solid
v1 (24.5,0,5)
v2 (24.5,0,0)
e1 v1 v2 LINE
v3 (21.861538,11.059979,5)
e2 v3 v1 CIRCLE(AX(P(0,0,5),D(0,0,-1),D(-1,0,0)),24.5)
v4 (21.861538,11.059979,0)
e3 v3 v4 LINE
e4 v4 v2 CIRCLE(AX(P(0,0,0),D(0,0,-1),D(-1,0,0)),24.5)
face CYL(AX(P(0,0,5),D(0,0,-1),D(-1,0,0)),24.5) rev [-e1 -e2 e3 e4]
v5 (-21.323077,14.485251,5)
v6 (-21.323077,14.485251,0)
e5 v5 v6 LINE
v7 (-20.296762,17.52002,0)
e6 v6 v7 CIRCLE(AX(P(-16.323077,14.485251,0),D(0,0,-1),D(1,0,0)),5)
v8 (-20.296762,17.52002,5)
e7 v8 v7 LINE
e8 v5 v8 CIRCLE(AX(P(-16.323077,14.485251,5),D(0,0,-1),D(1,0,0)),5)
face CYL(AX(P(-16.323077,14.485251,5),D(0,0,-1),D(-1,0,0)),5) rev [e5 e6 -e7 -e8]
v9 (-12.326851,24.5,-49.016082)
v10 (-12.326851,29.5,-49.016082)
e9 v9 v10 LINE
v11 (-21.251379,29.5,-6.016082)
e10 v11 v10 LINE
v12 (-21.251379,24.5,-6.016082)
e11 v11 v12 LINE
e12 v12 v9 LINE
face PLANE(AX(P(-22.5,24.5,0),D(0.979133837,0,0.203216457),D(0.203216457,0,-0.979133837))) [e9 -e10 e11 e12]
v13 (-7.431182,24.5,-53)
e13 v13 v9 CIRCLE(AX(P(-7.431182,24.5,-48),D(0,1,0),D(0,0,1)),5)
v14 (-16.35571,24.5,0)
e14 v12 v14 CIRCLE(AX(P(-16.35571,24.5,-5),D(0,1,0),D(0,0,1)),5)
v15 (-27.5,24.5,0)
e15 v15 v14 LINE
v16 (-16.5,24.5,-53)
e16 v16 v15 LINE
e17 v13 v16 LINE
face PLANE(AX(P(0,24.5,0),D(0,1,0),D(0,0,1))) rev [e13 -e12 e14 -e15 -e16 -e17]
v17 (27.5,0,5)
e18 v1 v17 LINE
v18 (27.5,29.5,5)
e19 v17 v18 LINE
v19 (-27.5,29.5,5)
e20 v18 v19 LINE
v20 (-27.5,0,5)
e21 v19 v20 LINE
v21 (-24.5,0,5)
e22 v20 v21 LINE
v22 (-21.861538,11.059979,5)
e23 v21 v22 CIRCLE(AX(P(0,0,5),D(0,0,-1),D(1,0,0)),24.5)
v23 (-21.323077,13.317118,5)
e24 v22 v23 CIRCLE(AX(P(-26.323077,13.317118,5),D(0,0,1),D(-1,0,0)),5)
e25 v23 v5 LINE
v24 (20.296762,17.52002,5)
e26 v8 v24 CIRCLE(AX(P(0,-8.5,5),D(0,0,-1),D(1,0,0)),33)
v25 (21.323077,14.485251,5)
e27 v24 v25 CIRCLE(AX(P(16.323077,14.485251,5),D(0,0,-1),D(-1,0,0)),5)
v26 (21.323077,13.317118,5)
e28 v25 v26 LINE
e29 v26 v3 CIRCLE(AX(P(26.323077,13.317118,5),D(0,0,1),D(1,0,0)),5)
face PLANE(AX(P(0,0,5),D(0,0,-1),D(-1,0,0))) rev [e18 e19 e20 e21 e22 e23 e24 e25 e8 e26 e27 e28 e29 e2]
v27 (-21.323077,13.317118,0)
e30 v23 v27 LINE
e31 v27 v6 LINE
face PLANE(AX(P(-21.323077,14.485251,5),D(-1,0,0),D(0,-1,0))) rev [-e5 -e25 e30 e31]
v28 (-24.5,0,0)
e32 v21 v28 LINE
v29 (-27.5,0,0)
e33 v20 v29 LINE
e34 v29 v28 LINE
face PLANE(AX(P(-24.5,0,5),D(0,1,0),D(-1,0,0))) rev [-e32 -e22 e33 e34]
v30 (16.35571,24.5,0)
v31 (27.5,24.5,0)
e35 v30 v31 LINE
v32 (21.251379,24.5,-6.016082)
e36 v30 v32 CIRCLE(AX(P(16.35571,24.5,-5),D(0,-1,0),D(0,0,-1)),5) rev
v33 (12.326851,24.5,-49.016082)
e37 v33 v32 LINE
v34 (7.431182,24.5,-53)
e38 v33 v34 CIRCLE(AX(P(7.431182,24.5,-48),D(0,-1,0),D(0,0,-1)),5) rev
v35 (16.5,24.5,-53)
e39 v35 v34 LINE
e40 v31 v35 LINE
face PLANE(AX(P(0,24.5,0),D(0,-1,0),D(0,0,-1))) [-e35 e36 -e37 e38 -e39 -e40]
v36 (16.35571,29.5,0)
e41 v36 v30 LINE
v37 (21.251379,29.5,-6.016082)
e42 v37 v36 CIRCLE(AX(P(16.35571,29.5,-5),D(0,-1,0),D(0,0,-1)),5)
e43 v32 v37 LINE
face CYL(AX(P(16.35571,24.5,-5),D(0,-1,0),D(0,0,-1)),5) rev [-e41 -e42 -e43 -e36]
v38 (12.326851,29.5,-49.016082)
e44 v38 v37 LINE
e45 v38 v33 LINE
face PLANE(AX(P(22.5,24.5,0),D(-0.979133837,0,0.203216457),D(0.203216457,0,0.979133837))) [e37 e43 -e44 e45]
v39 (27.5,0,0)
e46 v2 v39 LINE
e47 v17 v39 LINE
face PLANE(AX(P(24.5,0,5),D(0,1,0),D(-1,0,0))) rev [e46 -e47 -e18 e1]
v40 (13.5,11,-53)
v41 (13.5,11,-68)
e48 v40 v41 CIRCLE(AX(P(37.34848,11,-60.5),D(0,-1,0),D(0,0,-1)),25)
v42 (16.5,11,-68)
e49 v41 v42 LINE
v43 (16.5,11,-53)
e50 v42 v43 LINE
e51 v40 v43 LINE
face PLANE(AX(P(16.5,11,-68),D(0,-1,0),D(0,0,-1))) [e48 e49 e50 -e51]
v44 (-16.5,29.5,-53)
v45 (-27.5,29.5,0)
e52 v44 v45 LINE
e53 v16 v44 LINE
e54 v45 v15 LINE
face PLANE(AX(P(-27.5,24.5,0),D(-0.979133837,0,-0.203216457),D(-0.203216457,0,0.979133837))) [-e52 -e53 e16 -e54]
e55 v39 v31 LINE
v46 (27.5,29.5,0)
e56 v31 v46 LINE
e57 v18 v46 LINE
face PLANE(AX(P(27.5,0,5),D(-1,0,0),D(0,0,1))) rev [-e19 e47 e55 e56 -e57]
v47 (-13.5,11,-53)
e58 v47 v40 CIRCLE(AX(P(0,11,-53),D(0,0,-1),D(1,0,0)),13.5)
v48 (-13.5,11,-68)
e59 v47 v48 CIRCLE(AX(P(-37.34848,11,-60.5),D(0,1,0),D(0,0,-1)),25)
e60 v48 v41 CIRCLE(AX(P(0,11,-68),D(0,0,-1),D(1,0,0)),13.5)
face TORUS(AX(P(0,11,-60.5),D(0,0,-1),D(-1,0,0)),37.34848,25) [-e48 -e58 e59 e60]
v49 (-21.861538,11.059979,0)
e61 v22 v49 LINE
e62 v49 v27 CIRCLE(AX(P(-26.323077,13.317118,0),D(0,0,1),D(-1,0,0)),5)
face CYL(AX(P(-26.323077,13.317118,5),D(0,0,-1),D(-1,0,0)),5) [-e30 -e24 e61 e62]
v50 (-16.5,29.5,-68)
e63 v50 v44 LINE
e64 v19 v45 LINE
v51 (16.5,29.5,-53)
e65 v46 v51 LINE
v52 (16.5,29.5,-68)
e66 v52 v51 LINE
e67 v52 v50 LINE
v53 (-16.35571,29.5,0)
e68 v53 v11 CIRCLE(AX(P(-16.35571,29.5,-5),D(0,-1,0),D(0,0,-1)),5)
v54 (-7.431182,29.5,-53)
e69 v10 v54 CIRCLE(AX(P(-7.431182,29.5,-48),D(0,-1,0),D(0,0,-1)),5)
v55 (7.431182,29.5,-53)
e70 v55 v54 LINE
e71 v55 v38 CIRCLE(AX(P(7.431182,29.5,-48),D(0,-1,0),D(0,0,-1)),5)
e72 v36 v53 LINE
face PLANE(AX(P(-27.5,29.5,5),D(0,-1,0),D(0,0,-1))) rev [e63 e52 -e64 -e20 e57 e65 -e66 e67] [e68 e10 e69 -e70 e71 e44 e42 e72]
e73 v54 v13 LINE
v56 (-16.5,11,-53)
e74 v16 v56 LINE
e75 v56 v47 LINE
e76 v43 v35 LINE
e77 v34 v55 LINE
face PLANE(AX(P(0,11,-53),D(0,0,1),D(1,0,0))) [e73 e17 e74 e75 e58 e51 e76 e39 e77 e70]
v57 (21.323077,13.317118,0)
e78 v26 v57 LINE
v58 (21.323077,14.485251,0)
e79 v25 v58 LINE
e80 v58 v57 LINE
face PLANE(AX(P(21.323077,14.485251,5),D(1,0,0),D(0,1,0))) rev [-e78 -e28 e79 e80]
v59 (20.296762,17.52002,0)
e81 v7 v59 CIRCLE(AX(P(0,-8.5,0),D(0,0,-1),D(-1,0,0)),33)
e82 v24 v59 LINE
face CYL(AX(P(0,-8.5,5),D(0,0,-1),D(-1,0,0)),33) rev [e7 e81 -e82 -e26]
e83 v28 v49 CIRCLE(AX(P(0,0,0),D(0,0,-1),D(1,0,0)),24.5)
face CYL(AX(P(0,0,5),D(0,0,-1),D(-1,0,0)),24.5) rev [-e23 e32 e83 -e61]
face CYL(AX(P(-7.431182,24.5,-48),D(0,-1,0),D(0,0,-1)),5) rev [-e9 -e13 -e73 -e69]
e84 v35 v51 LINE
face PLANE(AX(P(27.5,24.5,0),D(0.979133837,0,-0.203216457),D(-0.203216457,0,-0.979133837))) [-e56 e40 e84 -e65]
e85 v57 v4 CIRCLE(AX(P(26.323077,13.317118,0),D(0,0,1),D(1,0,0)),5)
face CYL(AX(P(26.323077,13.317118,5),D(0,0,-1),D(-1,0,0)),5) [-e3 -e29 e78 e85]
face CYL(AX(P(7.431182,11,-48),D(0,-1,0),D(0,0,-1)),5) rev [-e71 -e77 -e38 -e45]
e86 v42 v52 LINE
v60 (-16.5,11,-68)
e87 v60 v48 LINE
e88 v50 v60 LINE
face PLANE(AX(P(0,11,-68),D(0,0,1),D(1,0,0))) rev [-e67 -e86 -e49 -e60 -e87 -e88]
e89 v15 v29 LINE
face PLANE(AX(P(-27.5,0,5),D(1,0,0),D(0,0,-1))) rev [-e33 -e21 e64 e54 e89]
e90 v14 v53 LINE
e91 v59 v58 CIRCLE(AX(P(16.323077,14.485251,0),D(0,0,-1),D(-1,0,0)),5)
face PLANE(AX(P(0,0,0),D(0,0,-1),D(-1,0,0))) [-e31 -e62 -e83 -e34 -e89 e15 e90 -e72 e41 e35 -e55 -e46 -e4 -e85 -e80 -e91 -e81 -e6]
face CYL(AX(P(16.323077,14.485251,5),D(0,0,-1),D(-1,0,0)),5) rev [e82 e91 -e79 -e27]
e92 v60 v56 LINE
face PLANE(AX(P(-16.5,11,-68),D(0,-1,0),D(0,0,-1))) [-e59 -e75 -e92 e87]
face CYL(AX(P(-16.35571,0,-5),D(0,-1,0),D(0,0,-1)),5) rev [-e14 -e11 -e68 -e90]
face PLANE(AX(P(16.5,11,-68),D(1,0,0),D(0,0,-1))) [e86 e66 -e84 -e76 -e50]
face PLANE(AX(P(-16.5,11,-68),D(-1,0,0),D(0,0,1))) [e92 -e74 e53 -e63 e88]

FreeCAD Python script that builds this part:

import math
import FreeCAD as App
import Part
import Sketcher
from FreeCAD import Vector


def edges_at(feature, points):
    """Names of the edges that pass closest to the given points."""
    edges = feature.Shape.Edges
    near = lambda p: min(range(len(edges)), key=lambda i: edges[i].distToShape(Part.Vertex(*p))[0])
    return sorted({f"Edge{near(p) + 1}" for p in points})


def add_polygon(sketch, points):
    """Adds a closed chain of lines whose ends are joined by coincident constraints."""
    first, n = sketch.GeometryCount, len(points)
    for a, b in zip(points, points[1:] + points[:1]):
        sketch.addGeometry(Part.LineSegment(App.Vector(*a, 0), App.Vector(*b, 0)), False)
    for i in range(n):
        sketch.addConstraint(Sketcher.Constraint("Coincident", first + i, 2, first + (i + 1) % n, 1))

doc = App.newDocument("Part")
params = doc.addObject("Spreadsheet::Sheet", "Params")
for row, (alias, value) in enumerate([
    ("sketch1_radius", "5 mm"),
    ("sketch1_radius2", "33 mm"),
    ("sketch1_radius3", "24.5 mm"),
    ("sketch1_width", "3 mm"),
    ("sketch1_height", "29.5 mm"),
    ("pad1_length", "5 mm"),
    ("sketch2_radius", "13.5 mm"),
    ("sketch2_width", "3 mm"),
    ("sketch2_height", "18.5 mm"),
    ("pad2_length", "15 mm"),
    ("sketch3_radius", "25 mm"),
    ("sketch3_height", "15 mm"),
    ("revolution_angle", "180 deg"),
    ("sketch4_width", "5 mm"),
    ("pad3_length", "5 mm"),
    ("fillet_radius", "5 mm"),
], start=1):
    params.set(f"A{row}", alias)
    params.set(f"B{row}", "=" + value)
    params.setAlias(f"B{row}", alias)

body = doc.addObject("PartDesign::Body", "Body")

sketch1 = body.newObject("Sketcher::SketchObject", "Sketch")
sketch1.AttachmentSupport = (doc.getObject("XY_Plane"), [""])
sketch1.MapMode = "FlatFace"
sketch1.addGeometry([
    Part.LineSegment(Vector(-21.3, 13.3, 0), Vector(-21.3, 14.5, 0)),
    Part.ArcOfCircle(Part.Circle(Vector(-16.3, 14.5, 0), Vector(0, 0, 1), 5), math.radians(143), math.radians(180)),
    Part.ArcOfCircle(Part.Circle(Vector(0, -8.5, 0), Vector(0, 0, 1), 33), math.radians(90), math.radians(128)),
    Part.ArcOfCircle(Part.Circle(Vector(0, -8.5, 0), Vector(0, 0, 1), 33), math.radians(52), math.radians(90)),
    Part.ArcOfCircle(Part.Circle(Vector(16.3, 14.5, 0), Vector(0, 0, 1), 5), math.radians(0), math.radians(37)),
    Part.LineSegment(Vector(21.3, 14.5, 0), Vector(21.3, 13.3, 0)),
    Part.ArcOfCircle(Part.Circle(Vector(26.3, 13.3, 0), Vector(0, 0, 1), 5), math.radians(180), math.radians(207)),
    Part.ArcOfCircle(Part.Circle(Vector(0, 0, 0), Vector(0, 0, 1), 24.5), math.radians(0), math.radians(27)),
    Part.LineSegment(Vector(24.5, 0, 0), Vector(27.5, 0, 0)),
    Part.LineSegment(Vector(27.5, 0, 0), Vector(27.5, 29.5, 0)),
    Part.LineSegment(Vector(27.5, 29.5, 0), Vector(-27.5, 29.5, 0)),
    Part.LineSegment(Vector(-27.5, 29.5, 0), Vector(-27.5, 0, 0)),
    Part.LineSegment(Vector(-27.5, 0, 0), Vector(-24.5, 0, 0)),
    Part.ArcOfCircle(Part.Circle(Vector(0, 0, 0), Vector(0, 0, 1), 24.5), math.radians(153), math.radians(180)),
    Part.ArcOfCircle(Part.Circle(Vector(-26.3, 13.3, 0), Vector(0, 0, 1), 5), math.radians(-27), math.radians(0)),
], False)
sketch1.addConstraint([
    Sketcher.Constraint("Tangent", 0, 2, 1, 2),
    Sketcher.Constraint("Coincident", 1, 1, 2, 2),
    Sketcher.Constraint("Tangent", 2, 1, 3, 2),
    Sketcher.Constraint("Coincident", 3, 1, 4, 2),
    Sketcher.Constraint("Tangent", 4, 1, 5, 1),
    Sketcher.Constraint("Tangent", 5, 2, 6, 1),
    Sketcher.Constraint("Tangent", 6, 2, 7, 2),
    Sketcher.Constraint("Coincident", 7, 1, 8, 1),
    Sketcher.Constraint("Coincident", 8, 2, 9, 1),
    Sketcher.Constraint("Coincident", 9, 2, 10, 1),
    Sketcher.Constraint("Coincident", 10, 2, 11, 1),
    Sketcher.Constraint("Coincident", 11, 2, 12, 1),
    Sketcher.Constraint("Coincident", 12, 2, 13, 2),
    Sketcher.Constraint("Tangent", 13, 1, 14, 1),
    Sketcher.Constraint("Tangent", 14, 2, 0, 1),
    Sketcher.Constraint("Vertical", 0),
    Sketcher.Constraint("Vertical", 5),
    Sketcher.Constraint("Horizontal", 8),
    Sketcher.Constraint("Vertical", 9),
    Sketcher.Constraint("Horizontal", 10),
    Sketcher.Constraint("Vertical", 11),
    Sketcher.Constraint("Horizontal", 12),
    Sketcher.Constraint("Coincident", 7, 3, -1, 1),
    Sketcher.Constraint("Coincident", 13, 3, -1, 1),
    Sketcher.Constraint("Equal", 2, 3),
    Sketcher.Constraint("Equal", 1, 4),
    Sketcher.Constraint("Equal", 4, 6),
    Sketcher.Constraint("Equal", 7, 13),
    Sketcher.Constraint("Equal", 6, 14),
    Sketcher.Constraint("Symmetric", 8, 2, 11, 2, -1, 1),
    Sketcher.Constraint("Symmetric", 1, 3, 4, 3, -2),
    Sketcher.Constraint("PointOnObject", 2, 3, -2),
    Sketcher.Constraint("PointOnObject", 2, 1, -2),
    Sketcher.Constraint("PointOnObject", 7, 1, -1),
    Sketcher.Constraint("Radius", 1, 5.0),
    Sketcher.Constraint("Radius", 2, 33.0),
    Sketcher.Constraint("Radius", 7, 24.5),
    Sketcher.Constraint("DistanceX", 8, 1, 8, 2, 3.0),
    Sketcher.Constraint("DistanceY", 9, 1, 9, 2, 29.5),
    Sketcher.Constraint("DistanceY", 2, 1, 10, 2, 5.0),
    Sketcher.Constraint("DistanceY", 0, 1, 0, 2, 1.168133),
    Sketcher.Constraint("DistanceY", -1, 1, 1, 3, 14.485251),
])
sketch1.setExpression("Constraints[34]", "Params.sketch1_radius")
sketch1.setExpression("Constraints[35]", "Params.sketch1_radius2")
sketch1.setExpression("Constraints[36]", "Params.sketch1_radius3")
sketch1.setExpression("Constraints[37]", "Params.sketch1_width")
sketch1.setExpression("Constraints[38]", "Params.sketch1_height")
pad1 = body.newObject("PartDesign::Pad", "Pad")
pad1.Profile = sketch1
pad1.setExpression("Length", "Params.pad1_length")
body2 = doc.addObject("PartDesign::Body", "Body001")

sketch2 = body2.newObject("Sketcher::SketchObject", "Sketch001")
sketch2.AttachmentSupport = (doc.getObject("XY_Plane001"), [""])
sketch2.MapMode = "FlatFace"
sketch2.AttachmentOffset = App.Placement(Vector(0, 0, -53), App.Rotation())
sketch2.addGeometry([
    Part.LineSegment(Vector(-16.5, 11, 0), Vector(-13.5, 11, 0)),
    Part.ArcOfCircle(Part.Circle(Vector(0, 11, 0), Vector(0, 0, 1), 13.5), math.radians(0), math.radians(180)),
    Part.LineSegment(Vector(13.5, 11, 0), Vector(16.5, 11, 0)),
    Part.LineSegment(Vector(16.5, 11, 0), Vector(16.5, 29.5, 0)),
    Part.LineSegment(Vector(16.5, 29.5, 0), Vector(-16.5, 29.5, 0)),
    Part.LineSegment(Vector(-16.5, 29.5, 0), Vector(-16.5, 11, 0)),
], False)
sketch2.addConstraint([
    Sketcher.Constraint("Coincident", 0, 2, 1, 2),
    Sketcher.Constraint("Coincident", 1, 1, 2, 1),
    Sketcher.Constraint("Coincident", 2, 2, 3, 1),
    Sketcher.Constraint("Coincident", 3, 2, 4, 1),
    Sketcher.Constraint("Coincident", 4, 2, 5, 1),
    Sketcher.Constraint("Coincident", 5, 2, 0, 1),
    Sketcher.Constraint("Horizontal", 0),
    Sketcher.Constraint("Horizontal", 2),
    Sketcher.Constraint("Vertical", 3),
    Sketcher.Constraint("Horizontal", 4),
    Sketcher.Constraint("Vertical", 5),
    Sketcher.Constraint("Symmetric", 0, 2, 1, 1, -2),
    Sketcher.Constraint("Horizontal", 1, 3, 0, 2),
    Sketcher.Constraint("Equal", 0, 2),
    Sketcher.Constraint("Radius", 1, 13.5),
    Sketcher.Constraint("DistanceX", 0, 1, 0, 2, 3.0),
    Sketcher.Constraint("DistanceY", 3, 1, 3, 2, 18.5),
    Sketcher.Constraint("DistanceY", -1, 1, 1, 3, 11.0),
])
sketch2.setExpression("Constraints[14]", "Params.sketch2_radius")
sketch2.setExpression("Constraints[15]", "Params.sketch2_width")
sketch2.setExpression("Constraints[16]", "Params.sketch2_height")
pad2 = body2.newObject("PartDesign::Pad", "Pad001")
pad2.Profile = sketch2
pad2.setExpression("Length", "Params.pad2_length")
pad2.Reversed = True

sketch3 = body2.newObject("Sketcher::SketchObject", "Sketch002")
sketch3.AttachmentSupport = (doc.getObject("XZ_Plane001"), [""])
sketch3.MapMode = "FlatFace"
sketch3.AttachmentOffset = App.Placement(Vector(0, 0, -11), App.Rotation())
sketch3.addGeometry([
    Part.LineSegment(Vector(14, -68, 0), Vector(14, -53, 0)),
    Part.ArcOfCircle(Part.Circle(Vector(37, -60, 0), Vector(0, 0, 1), 25), math.radians(163), math.radians(197)),
], False)
sketch3.addConstraint([
    Sketcher.Constraint("Coincident", 0, 1, 1, 2),
    Sketcher.Constraint("Coincident", 1, 1, 0, 2),
    Sketcher.Constraint("Vertical", 0),
    Sketcher.Constraint("Radius", 1, 25.0),
    Sketcher.Constraint("DistanceY", 0, 1, 0, 2, 15.0),
    Sketcher.Constraint("DistanceY", 0, 1, -1, 1, 68.0),
    Sketcher.Constraint("DistanceX", -1, 1, 0, 1, 13.5),
])
sketch3.setExpression("Constraints[3]", "Params.sketch3_radius")
sketch3.setExpression("Constraints[4]", "Params.sketch3_height")
revolution = body2.newObject("PartDesign::Revolution", "Revolution")
revolution.Profile = sketch3
revolution.ReferenceAxis = (sketch3, ["V_Axis"])
revolution.setExpression("Angle", "Params.revolution_angle")
body.AllowCompound = True
doc.recompute()

boolean = body.newObject("PartDesign::Boolean", "Boolean")
boolean.Type = "Fuse"
boolean.addObjects([body2])

sketch4 = body.newObject("Sketcher::SketchObject", "Sketch003")
sketch4.AttachmentSupport = (doc.getObject("XZ_Plane"), [""])
sketch4.MapMode = "FlatFace"
sketch4.AttachmentOffset = App.Placement(Vector(0, 0, -29.5), App.Rotation())
add_polygon(sketch4, [(-16, -53), (-28, 0), (-22, 0), (-12, -53)])
add_polygon(sketch4, [(12, -53), (22, 0), (28, 0), (16, -53)])
sketch4.addConstraint([
    Sketcher.Constraint("Horizontal", 1),
    Sketcher.Constraint("Horizontal", 3),
    Sketcher.Constraint("Horizontal", 5),
    Sketcher.Constraint("Horizontal", 7),
    Sketcher.Constraint("Symmetric", 1, 2, 4, 2, -1, 1),
    Sketcher.Constraint("Symmetric", 0, 2, 5, 2, -2),
    Sketcher.Constraint("Symmetric", 3, 2, 6, 2, -2),
    Sketcher.Constraint("Parallel", 0, 2),
    Sketcher.Constraint("Parallel", 4, 6),
    Sketcher.Constraint("DistanceX", 1, 1, 1, 2, 5.0),
    Sketcher.Constraint("DistanceY", 2, 2, -1, 1, 53.0),
    Sketcher.Constraint("DistanceX", 1, 2, 2, 2, 11.0),
    Sketcher.Constraint("DistanceX", 1, 2, 4, 2, 45.0),
])
sketch4.setExpression("Constraints[17]", "Params.sketch4_width")
pad3 = body.newObject("PartDesign::Pad", "Pad002")
pad3.Profile = sketch4
pad3.setExpression("Length", "Params.pad3_length")
doc.recompute()

fillet = body.newObject("PartDesign::Fillet", "Fillet")
fillet.Base = (pad3, edges_at(pad3, [
    (-22.5, 27, 0),
    (-11.5, 27, -53),
    (22.5, 27, 0),
    (11.5, 27, -53),
]))
fillet.setExpression("Radius", "Params.fillet_radius")

doc.recompute()
